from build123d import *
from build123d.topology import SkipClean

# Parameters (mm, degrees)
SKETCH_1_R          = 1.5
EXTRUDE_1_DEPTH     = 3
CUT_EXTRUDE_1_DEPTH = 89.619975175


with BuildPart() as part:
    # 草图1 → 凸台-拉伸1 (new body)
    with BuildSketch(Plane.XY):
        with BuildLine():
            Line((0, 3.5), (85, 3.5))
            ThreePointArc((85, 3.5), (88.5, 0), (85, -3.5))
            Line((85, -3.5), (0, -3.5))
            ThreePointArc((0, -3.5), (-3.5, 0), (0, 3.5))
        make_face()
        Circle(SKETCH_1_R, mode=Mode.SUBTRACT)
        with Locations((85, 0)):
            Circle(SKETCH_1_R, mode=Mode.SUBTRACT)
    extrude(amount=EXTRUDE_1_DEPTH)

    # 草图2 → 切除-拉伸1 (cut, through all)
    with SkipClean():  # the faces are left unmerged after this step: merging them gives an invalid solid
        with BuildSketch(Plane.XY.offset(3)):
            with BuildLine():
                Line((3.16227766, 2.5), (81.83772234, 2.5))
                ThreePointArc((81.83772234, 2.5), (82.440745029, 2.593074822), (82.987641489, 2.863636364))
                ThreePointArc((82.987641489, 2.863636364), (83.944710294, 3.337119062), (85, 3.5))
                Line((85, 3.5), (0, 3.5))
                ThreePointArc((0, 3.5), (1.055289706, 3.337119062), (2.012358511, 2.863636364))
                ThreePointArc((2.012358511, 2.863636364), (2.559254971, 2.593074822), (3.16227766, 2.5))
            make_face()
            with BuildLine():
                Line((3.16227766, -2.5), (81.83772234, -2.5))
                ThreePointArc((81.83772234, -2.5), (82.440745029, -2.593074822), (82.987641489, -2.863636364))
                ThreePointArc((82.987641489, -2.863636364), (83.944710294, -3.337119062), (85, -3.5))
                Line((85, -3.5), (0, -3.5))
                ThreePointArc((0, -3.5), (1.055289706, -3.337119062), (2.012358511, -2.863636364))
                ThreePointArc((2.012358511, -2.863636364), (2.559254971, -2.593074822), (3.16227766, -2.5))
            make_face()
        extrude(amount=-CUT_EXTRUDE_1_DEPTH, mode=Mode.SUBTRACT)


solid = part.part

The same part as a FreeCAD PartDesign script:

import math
import FreeCAD as App
import Part
import Sketcher
from FreeCAD import Vector

doc = App.newDocument("Part")
body = doc.addObject("PartDesign::Body", "Body")

# Sketch on XY plane
sketch1 = body.newObject("Sketcher::SketchObject", "Sketch")
sketch1.AttachmentSupport = (doc.getObject("XY_Plane"), [""])
sketch1.MapMode = "FlatFace"
sketch1.addGeometry([
    Part.LineSegment(Vector(85, 3.5, 0), Vector(0, 3.5, 0)),  # 0
    Part.ArcOfCircle(Part.Circle(Vector(0, 0, 0), Vector(0, 0, 1), 3.5), math.radians(90), math.radians(270)),  # 1
    Part.LineSegment(Vector(0, -3.5, 0), Vector(85, -3.5, 0)),  # 2
    Part.ArcOfCircle(Part.Circle(Vector(85, 0, 0), Vector(0, 0, 1), 3.5), math.radians(-90), math.radians(90)),  # 3
    Part.Circle(Vector(85, 0, 0), Vector(0, 0, 1), 1.5),  # 4
    Part.Circle(Vector(0, 0, 0), Vector(0, 0, 1), 1.5),  # 5
], False)
sketch1.addConstraint([
    Sketcher.Constraint("Tangent", 0, 2, 1, 1),
    Sketcher.Constraint("Tangent", 1, 2, 2, 1),
    Sketcher.Constraint("Tangent", 2, 2, 3, 1),
    Sketcher.Constraint("Tangent", 3, 2, 0, 1),
    Sketcher.Constraint("Horizontal", 0),
    Sketcher.Constraint("Horizontal", 2),
    Sketcher.Constraint("Coincident", 1, 3, -1, 1),
    Sketcher.Constraint("Coincident", 5, 3, -1, 1),
    Sketcher.Constraint("Coincident", 4, 3, 3, 3),
    Sketcher.Constraint("Equal", 4, 5),
    Sketcher.Constraint("Diameter", 4, 3.0),
    Sketcher.Constraint("Radius", 1, 3.5),
    Sketcher.Constraint("DistanceX", 0, 2, 0, 1, 85.0),
])
pad1 = body.newObject("PartDesign::Pad", "Pad")
pad1.Profile = sketch1
pad1.Length = 3

# Sketch on XY plane
sketch2 = body.newObject("Sketcher::SketchObject", "Sketch001")
sketch2.AttachmentSupport = (doc.getObject("XY_Plane"), [""])
sketch2.MapMode = "FlatFace"
sketch2.AttachmentOffset = App.Placement(Vector(0, 0, 3), App.Rotation())
sketch2.addGeometry([
    Part.LineSegment(Vector(3.162278, 2.5, 0), Vector(81.837722, 2.5, 0)),  # 0
    Part.ArcOfCircle(Part.Circle(Vector(81.837722, 4.5, 0), Vector(0, 0, 1), 2), math.radians(-90), math.radians(-54.903199)),  # 1
    Part.ArcOfCircle(Part.Circle(Vector(85, 0, 0), Vector(0, 0, 1), 3.5), math.radians(90), math.radians(125.096801)),  # 2
    Part.LineSegment(Vector(85, 3.5, 0), Vector(0, 3.5, 0)),  # 3
    Part.ArcOfCircle(Part.Circle(Vector(0, 0, 0), Vector(0, 0, 1), 3.5), math.radians(54.903199), math.radians(90)),  # 4
    Part.ArcOfCircle(Part.Circle(Vector(3.162278, 4.5, 0), Vector(0, 0, 1), 2), math.radians(-125.096801), math.radians(-90)),  # 5
    Part.LineSegment(Vector(81.837722, -2.5, 0), Vector(3.162278, -2.5, 0)),  # 6
    Part.ArcOfCircle(Part.Circle(Vector(3.162278, -4.5, 0), Vector(0, 0, 1), 2), math.radians(90), math.radians(125.096801)),  # 7
    Part.ArcOfCircle(Part.Circle(Vector(0, 0, 0), Vector(0, 0, 1), 3.5), math.radians(-90), math.radians(-54.903199)),  # 8
    Part.LineSegment(Vector(0, -3.5, 0), Vector(85, -3.5, 0)),  # 9
    Part.ArcOfCircle(Part.Circle(Vector(85, 0, 0), Vector(0, 0, 1), 3.5), math.radians(-125.096801), math.radians(-90)),  # 10
    Part.ArcOfCircle(Part.Circle(Vector(81.837722, -4.5, 0), Vector(0, 0, 1), 2), math.radians(54.903199), math.radians(90)),  # 11
], False)
sketch2.addConstraint([
    Sketcher.Constraint("Tangent", 0, 2, 1, 1),
    Sketcher.Constraint("Tangent", 1, 2, 2, 2),
    Sketcher.Constraint("Tangent", 2, 1, 3, 1),
    Sketcher.Constraint("Tangent", 3, 2, 4, 2),
    Sketcher.Constraint("Tangent", 4, 1, 5, 1),
    Sketcher.Constraint("Tangent", 5, 2, 0, 1),
    Sketcher.Constraint("Tangent", 6, 2, 7, 1),
    Sketcher.Constraint("Tangent", 7, 2, 8, 2),
    Sketcher.Constraint("Tangent", 8, 1, 9, 1),
    Sketcher.Constraint("Tangent", 9, 2, 10, 2),
    Sketcher.Constraint("Tangent", 10, 1, 11, 1),
    Sketcher.Constraint("Tangent", 11, 2, 6, 1),
    Sketcher.Constraint("Horizontal", 0),
    Sketcher.Constraint("Horizontal", 3),
    Sketcher.Constraint("Horizontal", 6),
    Sketcher.Constraint("Horizontal", 9),
    Sketcher.Constraint("Coincident", 4, 3, -1, 1),
    Sketcher.Constraint("Coincident", 8, 3, -1, 1),
    Sketcher.Constraint("Coincident", 10, 3, 2, 3),
    Sketcher.Constraint("Equal", 2, 4),
    Sketcher.Constraint("Equal", 1, 5),
    Sketcher.Constraint("Equal", 5, 7),
    Sketcher.Constraint("Equal", 4, 8),
    Sketcher.Constraint("Equal", 7, 11),
    Sketcher.Constraint("Vertical", 5, 3, 7, 3),
    Sketcher.Constraint("Radius", 1, 2.0),
    Sketcher.Constraint("Radius", 2, 3.5),
    Sketcher.Constraint("DistanceX", 3, 2, 3, 1, 85.0),
    Sketcher.Constraint("DistanceY", 7, 3, 5, 3, 9.0),
])
pocket1 = body.newObject("PartDesign::Pocket", "Pocket")
pocket1.Profile = sketch2
pocket1.Type = "ThroughAll"

doc.recompute()
